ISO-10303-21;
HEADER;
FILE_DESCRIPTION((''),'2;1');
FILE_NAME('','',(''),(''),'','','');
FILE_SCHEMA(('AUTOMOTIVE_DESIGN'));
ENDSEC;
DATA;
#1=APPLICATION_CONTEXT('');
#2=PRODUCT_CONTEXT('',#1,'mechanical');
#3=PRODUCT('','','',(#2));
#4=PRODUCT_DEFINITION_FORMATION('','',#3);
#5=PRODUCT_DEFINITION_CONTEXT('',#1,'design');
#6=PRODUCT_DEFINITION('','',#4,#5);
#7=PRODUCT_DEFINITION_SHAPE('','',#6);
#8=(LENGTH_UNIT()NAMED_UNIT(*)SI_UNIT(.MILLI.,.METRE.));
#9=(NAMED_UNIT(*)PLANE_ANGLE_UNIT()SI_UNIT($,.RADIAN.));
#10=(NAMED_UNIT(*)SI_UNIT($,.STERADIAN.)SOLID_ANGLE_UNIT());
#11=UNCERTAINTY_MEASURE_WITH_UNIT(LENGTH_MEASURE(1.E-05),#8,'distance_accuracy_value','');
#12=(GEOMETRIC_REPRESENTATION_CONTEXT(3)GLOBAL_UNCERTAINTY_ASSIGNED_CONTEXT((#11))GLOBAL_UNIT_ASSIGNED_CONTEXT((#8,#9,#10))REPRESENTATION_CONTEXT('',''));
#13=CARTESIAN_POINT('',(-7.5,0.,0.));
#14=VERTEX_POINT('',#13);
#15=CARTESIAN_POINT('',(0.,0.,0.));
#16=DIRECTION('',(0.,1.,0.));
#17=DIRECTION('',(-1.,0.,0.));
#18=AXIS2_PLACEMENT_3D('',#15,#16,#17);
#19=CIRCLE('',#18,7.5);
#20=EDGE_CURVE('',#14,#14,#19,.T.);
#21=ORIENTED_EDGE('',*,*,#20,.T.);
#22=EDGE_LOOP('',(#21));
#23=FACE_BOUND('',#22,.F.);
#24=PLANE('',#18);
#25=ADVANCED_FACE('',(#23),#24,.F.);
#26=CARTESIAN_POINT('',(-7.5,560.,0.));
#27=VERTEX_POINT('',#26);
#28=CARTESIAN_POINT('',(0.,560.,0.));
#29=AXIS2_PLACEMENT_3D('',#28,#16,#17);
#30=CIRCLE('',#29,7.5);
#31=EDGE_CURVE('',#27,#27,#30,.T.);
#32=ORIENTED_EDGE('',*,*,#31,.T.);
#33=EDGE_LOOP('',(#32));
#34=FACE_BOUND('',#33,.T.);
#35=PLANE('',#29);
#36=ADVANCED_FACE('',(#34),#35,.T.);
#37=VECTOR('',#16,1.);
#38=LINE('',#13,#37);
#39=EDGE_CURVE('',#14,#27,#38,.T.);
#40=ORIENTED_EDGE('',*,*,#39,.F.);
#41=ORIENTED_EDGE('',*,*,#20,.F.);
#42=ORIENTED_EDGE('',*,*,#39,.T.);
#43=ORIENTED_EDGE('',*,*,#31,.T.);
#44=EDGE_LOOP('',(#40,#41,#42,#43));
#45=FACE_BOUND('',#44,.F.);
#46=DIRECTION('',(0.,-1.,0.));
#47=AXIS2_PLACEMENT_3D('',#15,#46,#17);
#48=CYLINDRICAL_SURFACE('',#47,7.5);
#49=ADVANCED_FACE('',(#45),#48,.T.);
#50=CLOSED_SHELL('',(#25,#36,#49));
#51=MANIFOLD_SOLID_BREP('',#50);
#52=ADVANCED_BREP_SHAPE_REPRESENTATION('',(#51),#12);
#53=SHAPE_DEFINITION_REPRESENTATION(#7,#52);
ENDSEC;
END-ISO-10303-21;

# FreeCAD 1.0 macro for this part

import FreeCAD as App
import Part
import Sketcher
from FreeCAD import Vector
Q = App.Units.Quantity

doc = App.newDocument("Part")
body = doc.addObject("PartDesign::Body", "Body")

# Sketch on XZ plane
sketch1 = body.newObject("Sketcher::SketchObject", "Sketch")
sketch1.AttachmentSupport = (doc.getObject("XZ_Plane"), [""])
sketch1.MapMode = "FlatFace"
sketch1.addGeometry(Part.Circle(Vector(0, 0, 0), Vector(0, 0, 1), 8), False)
sketch1.addConstraint([
    Sketcher.Constraint("Coincident", 0, 3, -1, 1),
    Sketcher.Constraint("Diameter", 0, Q("15 mm")),
])
pad1 = body.newObject("PartDesign::Pad", "Pad")
pad1.Profile = sketch1
pad1.Length = 560
pad1.Reversed = True

doc.recompute()
